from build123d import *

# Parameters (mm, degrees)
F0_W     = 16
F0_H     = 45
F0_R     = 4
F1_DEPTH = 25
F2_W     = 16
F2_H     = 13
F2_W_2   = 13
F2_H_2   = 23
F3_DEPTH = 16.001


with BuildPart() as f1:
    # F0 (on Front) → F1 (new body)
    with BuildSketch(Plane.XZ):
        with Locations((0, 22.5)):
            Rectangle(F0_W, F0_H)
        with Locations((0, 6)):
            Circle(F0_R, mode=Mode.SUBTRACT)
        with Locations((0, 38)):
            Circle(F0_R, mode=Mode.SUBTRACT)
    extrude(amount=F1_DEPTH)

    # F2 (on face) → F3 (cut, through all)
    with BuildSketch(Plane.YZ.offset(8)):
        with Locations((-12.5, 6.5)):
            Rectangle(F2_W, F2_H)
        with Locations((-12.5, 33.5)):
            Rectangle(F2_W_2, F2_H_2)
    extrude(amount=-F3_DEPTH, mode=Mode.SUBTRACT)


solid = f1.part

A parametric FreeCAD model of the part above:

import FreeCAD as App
import Part
import Sketcher
from FreeCAD import Vector
Q = App.Units.Quantity

doc = App.newDocument("Part")
params = doc.addObject("Spreadsheet::Sheet", "Params")
for row, (alias, value) in enumerate([
    ("sketch1_diameter", "8 mm"),
    ("sketch1_width", "16 mm"),
    ("sketch1_height", "45 mm"),
    ("pad1_length", "25 mm"),
    ("sketch2_width", "16 mm"),
    ("sketch2_width2", "13 mm"),
    ("sketch2_height", "23 mm"),
], start=1):
    params.set(f"A{row}", alias)
    params.set(f"B{row}", "=" + value)
    params.setAlias(f"B{row}", alias)

body = doc.addObject("PartDesign::Body", "Body")

sketch1 = doc.addObject("Sketcher::SketchObject", "Sketch")
body.addObject(sketch1)
sketch1.AttachmentSupport = (doc.XZ_Plane, [""])
sketch1.MapMode = "FlatFace"
sketch1.addGeometry([
    Part.LineSegment(Vector(-8, 45, 0), Vector(-8, 0, 0)),
    Part.LineSegment(Vector(-8, 0, 0), Vector(8, 0, 0)),
    Part.LineSegment(Vector(8, 0, 0), Vector(8, 45, 0)),
    Part.LineSegment(Vector(8, 45, 0), Vector(-8, 45, 0)),
    Part.Circle(Vector(0, 6, 0), Vector(0, 0, 1), 4),
    Part.Circle(Vector(0, 38, 0), Vector(0, 0, 1), 4),
], False)
sketch1.addConstraint([
    Sketcher.Constraint("Coincident", 0, 2, 1, 1),
    Sketcher.Constraint("Coincident", 1, 2, 2, 1),
    Sketcher.Constraint("Coincident", 2, 2, 3, 1),
    Sketcher.Constraint("Coincident", 3, 2, 0, 1),
    Sketcher.Constraint("Vertical", 0),
    Sketcher.Constraint("Horizontal", 1),
    Sketcher.Constraint("Vertical", 2),
    Sketcher.Constraint("Horizontal", 3),
    Sketcher.Constraint("Equal", 4, 5),
    Sketcher.Constraint("Symmetric", 0, 2, 1, 2, -1, 1),
    Sketcher.Constraint("PointOnObject", 4, 3, -2),
    Sketcher.Constraint("PointOnObject", 5, 3, -2),
    Sketcher.Constraint("Diameter", 4, Q("8 mm")),
    Sketcher.Constraint("DistanceX", 1, 1, 1, 2, Q("16 mm")),
    Sketcher.Constraint("DistanceY", 0, 2, 0, 1, Q("45 mm")),
    Sketcher.Constraint("DistanceY", -1, 1, 4, 3, Q("6 mm")),
    Sketcher.Constraint("DistanceY", -1, 1, 5, 3, Q("38 mm")),
])
sketch1.setExpression("Constraints[12]", "Params.sketch1_diameter")
sketch1.setExpression("Constraints[13]", "Params.sketch1_width")
sketch1.setExpression("Constraints[14]", "Params.sketch1_height")
pad1 = doc.addObject("PartDesign::Pad", "Pad")
body.addObject(pad1)
pad1.Profile = sketch1
pad1.setExpression("Length", "Params.pad1_length")

sketch2 = doc.addObject("Sketcher::SketchObject", "Sketch001")
body.addObject(sketch2)
sketch2.AttachmentSupport = (doc.YZ_Plane, [""])
sketch2.MapMode = "FlatFace"
sketch2.AttachmentOffset = App.Placement(Vector(0, 0, 8), App.Rotation())
sketch2.addGeometry([
    Part.LineSegment(Vector(-20, 13, 0), Vector(-20, 0, 0)),
    Part.LineSegment(Vector(-20, 0, 0), Vector(-4, 0, 0)),
    Part.LineSegment(Vector(-4, 0, 0), Vector(-4, 13, 0)),
    Part.LineSegment(Vector(-4, 13, 0), Vector(-20, 13, 0)),
    Part.LineSegment(Vector(-19, 45, 0), Vector(-19, 22, 0)),
    Part.LineSegment(Vector(-19, 22, 0), Vector(-6, 22, 0)),
    Part.LineSegment(Vector(-6, 22, 0), Vector(-6, 45, 0)),
    Part.LineSegment(Vector(-6, 45, 0), Vector(-19, 45, 0)),
], False)
sketch2.addConstraint([
    Sketcher.Constraint("Coincident", 0, 2, 1, 1),
    Sketcher.Constraint("Coincident", 1, 2, 2, 1),
    Sketcher.Constraint("Coincident", 2, 2, 3, 1),
    Sketcher.Constraint("Coincident", 3, 2, 0, 1),
    Sketcher.Constraint("Coincident", 4, 2, 5, 1),
    Sketcher.Constraint("Coincident", 5, 2, 6, 1),
    Sketcher.Constraint("Coincident", 6, 2, 7, 1),
    Sketcher.Constraint("Coincident", 7, 2, 4, 1),
    Sketcher.Constraint("Vertical", 0),
    Sketcher.Constraint("Horizontal", 1),
    Sketcher.Constraint("Vertical", 2),
    Sketcher.Constraint("Horizontal", 3),
    Sketcher.Constraint("Vertical", 4),
    Sketcher.Constraint("Horizontal", 5),
    Sketcher.Constraint("Vertical", 6),
    Sketcher.Constraint("Horizontal", 7),
    Sketcher.Constraint("PointOnObject", 0, 2, -1),
    Sketcher.Constraint("Equal", 7, 0),
    Sketcher.Constraint("DistanceX", 1, 1, 1, 2, Q("16 mm")),
    Sketcher.Constraint("DistanceX", 5, 1, 5, 2, Q("13 mm")),
    Sketcher.Constraint("DistanceY", 4, 2, 4, 1, Q("23 mm")),
    Sketcher.Constraint("DistanceX", 4, 2, -1, 1, Q("19 mm")),
    Sketcher.Constraint("DistanceY", -1, 1, 4, 2, Q("22 mm")),
    Sketcher.Constraint("DistanceX", 0, 2, -1, 1, Q("20.5 mm")),
])
sketch2.setExpression("Constraints[18]", "Params.sketch2_width")
sketch2.setExpression("Constraints[19]", "Params.sketch2_width2")
sketch2.setExpression("Constraints[20]", "Params.sketch2_height")
pocket1 = doc.addObject("PartDesign::Pocket", "Pocket")
body.addObject(pocket1)
pocket1.Profile = sketch2
pocket1.Type = "ThroughAll"

doc.recompute()
